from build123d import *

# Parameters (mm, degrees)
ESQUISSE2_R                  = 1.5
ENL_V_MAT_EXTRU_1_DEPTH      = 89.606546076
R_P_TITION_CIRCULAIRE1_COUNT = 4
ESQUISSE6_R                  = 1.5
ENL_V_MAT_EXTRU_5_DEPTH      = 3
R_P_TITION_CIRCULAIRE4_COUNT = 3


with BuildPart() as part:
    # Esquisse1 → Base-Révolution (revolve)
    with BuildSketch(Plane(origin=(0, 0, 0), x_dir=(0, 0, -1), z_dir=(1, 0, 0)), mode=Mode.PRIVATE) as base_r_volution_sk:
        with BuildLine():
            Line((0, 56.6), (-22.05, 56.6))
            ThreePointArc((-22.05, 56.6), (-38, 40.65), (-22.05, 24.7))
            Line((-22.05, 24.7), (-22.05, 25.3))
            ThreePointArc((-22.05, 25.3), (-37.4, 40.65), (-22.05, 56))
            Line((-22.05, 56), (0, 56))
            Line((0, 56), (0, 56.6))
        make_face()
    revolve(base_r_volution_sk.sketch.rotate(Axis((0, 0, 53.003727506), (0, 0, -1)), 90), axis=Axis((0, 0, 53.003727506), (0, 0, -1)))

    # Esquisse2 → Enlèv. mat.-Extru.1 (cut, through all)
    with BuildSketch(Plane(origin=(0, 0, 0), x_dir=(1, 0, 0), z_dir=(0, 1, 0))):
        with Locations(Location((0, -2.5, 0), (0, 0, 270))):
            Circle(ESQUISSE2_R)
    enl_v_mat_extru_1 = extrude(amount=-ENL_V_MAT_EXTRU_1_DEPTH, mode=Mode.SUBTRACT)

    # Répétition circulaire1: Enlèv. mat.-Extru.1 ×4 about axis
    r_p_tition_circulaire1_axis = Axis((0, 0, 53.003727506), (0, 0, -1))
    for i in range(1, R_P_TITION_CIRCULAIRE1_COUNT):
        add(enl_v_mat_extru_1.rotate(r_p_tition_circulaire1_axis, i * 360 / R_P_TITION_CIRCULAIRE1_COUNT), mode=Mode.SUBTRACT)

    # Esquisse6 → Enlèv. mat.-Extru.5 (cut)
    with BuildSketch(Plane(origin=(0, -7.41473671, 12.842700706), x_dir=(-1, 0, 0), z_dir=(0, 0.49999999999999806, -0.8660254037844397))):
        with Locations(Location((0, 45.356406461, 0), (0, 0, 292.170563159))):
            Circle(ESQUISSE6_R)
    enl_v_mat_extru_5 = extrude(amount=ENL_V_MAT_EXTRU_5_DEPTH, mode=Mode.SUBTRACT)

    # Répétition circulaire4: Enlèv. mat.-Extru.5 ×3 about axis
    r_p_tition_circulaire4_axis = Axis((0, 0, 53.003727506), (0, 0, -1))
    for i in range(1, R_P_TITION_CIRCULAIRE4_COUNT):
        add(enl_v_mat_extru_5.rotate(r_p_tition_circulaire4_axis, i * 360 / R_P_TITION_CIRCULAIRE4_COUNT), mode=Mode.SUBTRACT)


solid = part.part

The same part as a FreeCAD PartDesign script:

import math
import FreeCAD as App
import Part
import Sketcher

doc = App.newDocument("Part")
body = doc.addObject("PartDesign::Body", "Body")

sketch1 = doc.addObject("Sketcher::SketchObject", "Sketch")
body.addObject(sketch1)
sketch1.AttachmentSupport = (doc.YZ_Plane, [""])
sketch1.MapMode = "FlatFace"
sketch1.addGeometry(Part.LineSegment(App.Vector(56.6, 0, 0), App.Vector(56.6, 22.05, 0)), False)
sketch1.addGeometry(Part.ArcOfCircle(Part.Circle(App.Vector(40.65, 22.05, 0), App.Vector(0, 0, 1), 15.95), math.radians(0), math.radians(180)), False)
sketch1.addGeometry(Part.LineSegment(App.Vector(24.7, 22.05, 0), App.Vector(25.3, 22.05, 0)), False)
sketch1.addGeometry(Part.ArcOfCircle(Part.Circle(App.Vector(40.65, 22.05, 0), App.Vector(0, 0, 1), 15.35), math.radians(0), math.radians(180)), False)
sketch1.addGeometry(Part.LineSegment(App.Vector(56, 22.05, 0), App.Vector(56, 0, 0)), False)
sketch1.addGeometry(Part.LineSegment(App.Vector(56, 0, 0), App.Vector(56.6, 0, 0)), False)
sketch1.addConstraint(Sketcher.Constraint("Tangent", 0, 2, 1, 1))
sketch1.addConstraint(Sketcher.Constraint("Coincident", 1, 2, 2, 1))
sketch1.addConstraint(Sketcher.Constraint("Coincident", 2, 2, 3, 2))
sketch1.addConstraint(Sketcher.Constraint("Tangent", 3, 1, 4, 1))
sketch1.addConstraint(Sketcher.Constraint("Coincident", 4, 2, 5, 1))
sketch1.addConstraint(Sketcher.Constraint("Coincident", 5, 2, 0, 1))
sketch1.addConstraint(Sketcher.Constraint("Vertical", 0))
sketch1.addConstraint(Sketcher.Constraint("Horizontal", 2))
sketch1.addConstraint(Sketcher.Constraint("Vertical", 4))
sketch1.addConstraint(Sketcher.Constraint("Horizontal", 5))
sketch1.addConstraint(Sketcher.Constraint("Coincident", 3, 3, 1, 3))
sketch1.addConstraint(Sketcher.Constraint("PointOnObject", 4, 2, -1))
sketch1.addConstraint(Sketcher.Constraint("Horizontal", 0, 2, 1, 2))
sketch1.addConstraint(Sketcher.Constraint("Radius", 1, 15.95))
sketch1.addConstraint(Sketcher.Constraint("Radius", 3, 15.35))
sketch1.addConstraint(Sketcher.Constraint("DistanceX", -1, 1, 3, 1, 56.0))
sketch1.addConstraint(Sketcher.Constraint("DistanceY", 0, 1, 0, 2, 22.05))
revolution = doc.addObject("PartDesign::Revolution", "Revolution")
body.addObject(revolution)
revolution.Profile = sketch1
revolution.ReferenceAxis = (sketch1, ["V_Axis"])
revolution.Angle = 360

sketch2 = doc.addObject("Sketcher::SketchObject", "Sketch001")
body.addObject(sketch2)
sketch2.AttachmentSupport = (doc.XZ_Plane, [""])
sketch2.MapMode = "FlatFace"
sketch2.addGeometry(Part.Circle(App.Vector(0, 2.5, 0), App.Vector(0, 0, 1), 1.5), False)
sketch2.addConstraint(Sketcher.Constraint("PointOnObject", 0, 3, -2))
sketch2.addConstraint(Sketcher.Constraint("Diameter", 0, 3.0))
sketch2.addConstraint(Sketcher.Constraint("DistanceY", -1, 1, 0, 3, 2.5))
pocket1 = doc.addObject("PartDesign::Pocket", "Pocket")
body.addObject(pocket1)
pocket1.Profile = sketch2
pocket1.Type = "ThroughAll"
pocket1.Reversed = True
doc.recompute()

polarpattern = doc.addObject("PartDesign::PolarPattern", "PolarPattern")
body.addObject(polarpattern)
polarpattern.Originals = [pocket1]
polarpattern.Axis = (doc.Z_Axis, [""])
polarpattern.Angle = 360
polarpattern.Occurrences = 4
body.Tip = polarpattern

sketch3 = doc.addObject("Sketcher::SketchObject", "Sketch002")
body.addObject(sketch3)
sketch3.Placement = App.Placement(App.Vector(0, -7.414737, 12.842701), App.Rotation(App.Vector(-1, 0, 0), App.Vector(0, 0.866025404, 0.5), App.Vector(0, 0.5, -0.866025404), "ZXY"))
sketch3.addGeometry(Part.Circle(App.Vector(0, 45.356406, 0), App.Vector(0, 0, 1), 1.5), False)
sketch3.addConstraint(Sketcher.Constraint("PointOnObject", 0, 3, -2))
sketch3.addConstraint(Sketcher.Constraint("Diameter", 0, 3.0))
sketch3.addConstraint(Sketcher.Constraint("DistanceY", -1, 1, 0, 3, 45.356406))
pocket2 = doc.addObject("PartDesign::Pocket", "Pocket001")
body.addObject(pocket2)
pocket2.Profile = sketch3
pocket2.Length = 3
pocket2.Reversed = True
doc.recompute()

polarpattern2 = doc.addObject("PartDesign::PolarPattern", "PolarPattern001")
body.addObject(polarpattern2)
polarpattern2.Originals = [pocket2]
polarpattern2.Axis = (doc.Z_Axis, [""])
polarpattern2.Angle = 360
polarpattern2.Occurrences = 3
body.Tip = polarpattern2

doc.recompute()
